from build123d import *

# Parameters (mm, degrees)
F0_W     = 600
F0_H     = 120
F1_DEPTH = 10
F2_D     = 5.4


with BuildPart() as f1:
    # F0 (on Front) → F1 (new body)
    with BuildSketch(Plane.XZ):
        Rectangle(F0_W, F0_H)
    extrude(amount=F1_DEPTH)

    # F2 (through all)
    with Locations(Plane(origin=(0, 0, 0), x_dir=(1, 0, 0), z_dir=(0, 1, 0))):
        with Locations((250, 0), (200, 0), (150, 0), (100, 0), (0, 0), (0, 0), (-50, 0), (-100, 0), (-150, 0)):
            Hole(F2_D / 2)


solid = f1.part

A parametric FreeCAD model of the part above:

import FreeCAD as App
import Part
import Sketcher
from FreeCAD import Vector
Q = App.Units.Quantity


def add_polygon(sketch, points):
    """Adds a closed chain of lines whose ends are joined by coincident constraints."""
    first, n = sketch.GeometryCount, len(points)
    for a, b in zip(points, points[1:] + points[:1]):
        sketch.addGeometry(Part.LineSegment(App.Vector(*a, 0), App.Vector(*b, 0)), False)
    for i in range(n):
        sketch.addConstraint(Sketcher.Constraint("Coincident", first + i, 2, first + (i + 1) % n, 1))

doc = App.newDocument("Part")
body = doc.addObject("PartDesign::Body", "Body")

# Sketch on XZ plane
sketch1 = body.newObject("Sketcher::SketchObject", "Sketch")
sketch1.AttachmentSupport = (doc.getObject("XZ_Plane"), [""])
sketch1.MapMode = "FlatFace"
add_polygon(sketch1, [(-300, 60), (-300, -60), (300, -60), (300, 60)])  # lines 0-3
sketch1.addConstraint(Sketcher.Constraint("Vertical", 0))
sketch1.addConstraint(Sketcher.Constraint("Horizontal", 1))
sketch1.addConstraint(Sketcher.Constraint("Vertical", 2))
sketch1.addConstraint(Sketcher.Constraint("Horizontal", 3))
sketch1.addConstraint(Sketcher.Constraint("Symmetric", 0, 2, 2, 2, -1, 1))
sketch1.addConstraint(Sketcher.Constraint("DistanceX", 1, 1, 1, 2, Q("600 mm")))
sketch1.addConstraint(Sketcher.Constraint("DistanceY", 0, 2, 0, 1, Q("120 mm")))
pad1 = body.newObject("PartDesign::Pad", "Pad")
pad1.Profile = sketch1
pad1.Length = 10

# Sketch on XZ plane
sketch2 = body.newObject("Sketcher::SketchObject", "Sketch001")
sketch2.AttachmentSupport = (doc.getObject("XZ_Plane"), [""])
sketch2.MapMode = "FlatFace"
sketch2.addGeometry(Part.Circle(Vector(250, 0, 0), Vector(0, 0, 1), 2.7), False)
sketch2.addGeometry(Part.Circle(Vector(200, 0, 0), Vector(0, 0, 1), 2.7), False)
sketch2.addGeometry(Part.Circle(Vector(150, 0, 0), Vector(0, 0, 1), 2.7), False)
sketch2.addGeometry(Part.Circle(Vector(100, 0, 0), Vector(0, 0, 1), 2.7), False)
sketch2.addGeometry(Part.Circle(Vector(0, 0, 0), Vector(0, 0, 1), 2.7), False)
sketch2.addGeometry(Part.Circle(Vector(0, 0, 0), Vector(0, 0, 1), 2.7), False)
sketch2.addGeometry(Part.Circle(Vector(-50, 0, 0), Vector(0, 0, 1), 2.7), False)
sketch2.addGeometry(Part.Circle(Vector(-100, 0, 0), Vector(0, 0, 1), 2.7), False)
sketch2.addGeometry(Part.Circle(Vector(-150, 0, 0), Vector(0, 0, 1), 2.7), False)
sketch2.addConstraint(Sketcher.Constraint("Coincident", 4, 3, -1, 1))
sketch2.addConstraint(Sketcher.Constraint("Coincident", 5, 3, -1, 1))
sketch2.addConstraint(Sketcher.Constraint("Equal", 0, 1))
sketch2.addConstraint(Sketcher.Constraint("Equal", 1, 2))
sketch2.addConstraint(Sketcher.Constraint("Equal", 2, 3))
sketch2.addConstraint(Sketcher.Constraint("Equal", 3, 4))
sketch2.addConstraint(Sketcher.Constraint("Equal", 4, 5))
sketch2.addConstraint(Sketcher.Constraint("Equal", 5, 6))
sketch2.addConstraint(Sketcher.Constraint("Equal", 6, 7))
sketch2.addConstraint(Sketcher.Constraint("Equal", 7, 8))
sketch2.addConstraint(Sketcher.Constraint("Symmetric", 3, 3, 7, 3, -1, 1))
sketch2.addConstraint(Sketcher.Constraint("Symmetric", 2, 3, 8, 3, -1, 1))
sketch2.addConstraint(Sketcher.Constraint("PointOnObject", 0, 3, -1))
sketch2.addConstraint(Sketcher.Constraint("PointOnObject", 1, 3, -1))
sketch2.addConstraint(Sketcher.Constraint("PointOnObject", 2, 3, -1))
sketch2.addConstraint(Sketcher.Constraint("PointOnObject", 3, 3, -1))
sketch2.addConstraint(Sketcher.Constraint("PointOnObject", 6, 3, -1))
sketch2.addConstraint(Sketcher.Constraint("Diameter", 0, Q("5.4 mm")))
sketch2.addConstraint(Sketcher.Constraint("DistanceX", -1, 1, 0, 3, Q("250 mm")))
sketch2.addConstraint(Sketcher.Constraint("DistanceX", -1, 1, 1, 3, Q("200 mm")))
sketch2.addConstraint(Sketcher.Constraint("DistanceX", -1, 1, 2, 3, Q("150 mm")))
sketch2.addConstraint(Sketcher.Constraint("DistanceX", -1, 1, 3, 3, Q("100 mm")))
sketch2.addConstraint(Sketcher.Constraint("DistanceX", 6, 3, -1, 1, Q("50 mm")))
doc.recompute()
hole = body.newObject("PartDesign::Hole", "Hole")
hole.Profile = sketch2
hole.ThreadType = "None"
hole.Diameter = 5.4
hole.DepthType = "ThroughAll"
hole.Reversed = True

doc.recompute()
